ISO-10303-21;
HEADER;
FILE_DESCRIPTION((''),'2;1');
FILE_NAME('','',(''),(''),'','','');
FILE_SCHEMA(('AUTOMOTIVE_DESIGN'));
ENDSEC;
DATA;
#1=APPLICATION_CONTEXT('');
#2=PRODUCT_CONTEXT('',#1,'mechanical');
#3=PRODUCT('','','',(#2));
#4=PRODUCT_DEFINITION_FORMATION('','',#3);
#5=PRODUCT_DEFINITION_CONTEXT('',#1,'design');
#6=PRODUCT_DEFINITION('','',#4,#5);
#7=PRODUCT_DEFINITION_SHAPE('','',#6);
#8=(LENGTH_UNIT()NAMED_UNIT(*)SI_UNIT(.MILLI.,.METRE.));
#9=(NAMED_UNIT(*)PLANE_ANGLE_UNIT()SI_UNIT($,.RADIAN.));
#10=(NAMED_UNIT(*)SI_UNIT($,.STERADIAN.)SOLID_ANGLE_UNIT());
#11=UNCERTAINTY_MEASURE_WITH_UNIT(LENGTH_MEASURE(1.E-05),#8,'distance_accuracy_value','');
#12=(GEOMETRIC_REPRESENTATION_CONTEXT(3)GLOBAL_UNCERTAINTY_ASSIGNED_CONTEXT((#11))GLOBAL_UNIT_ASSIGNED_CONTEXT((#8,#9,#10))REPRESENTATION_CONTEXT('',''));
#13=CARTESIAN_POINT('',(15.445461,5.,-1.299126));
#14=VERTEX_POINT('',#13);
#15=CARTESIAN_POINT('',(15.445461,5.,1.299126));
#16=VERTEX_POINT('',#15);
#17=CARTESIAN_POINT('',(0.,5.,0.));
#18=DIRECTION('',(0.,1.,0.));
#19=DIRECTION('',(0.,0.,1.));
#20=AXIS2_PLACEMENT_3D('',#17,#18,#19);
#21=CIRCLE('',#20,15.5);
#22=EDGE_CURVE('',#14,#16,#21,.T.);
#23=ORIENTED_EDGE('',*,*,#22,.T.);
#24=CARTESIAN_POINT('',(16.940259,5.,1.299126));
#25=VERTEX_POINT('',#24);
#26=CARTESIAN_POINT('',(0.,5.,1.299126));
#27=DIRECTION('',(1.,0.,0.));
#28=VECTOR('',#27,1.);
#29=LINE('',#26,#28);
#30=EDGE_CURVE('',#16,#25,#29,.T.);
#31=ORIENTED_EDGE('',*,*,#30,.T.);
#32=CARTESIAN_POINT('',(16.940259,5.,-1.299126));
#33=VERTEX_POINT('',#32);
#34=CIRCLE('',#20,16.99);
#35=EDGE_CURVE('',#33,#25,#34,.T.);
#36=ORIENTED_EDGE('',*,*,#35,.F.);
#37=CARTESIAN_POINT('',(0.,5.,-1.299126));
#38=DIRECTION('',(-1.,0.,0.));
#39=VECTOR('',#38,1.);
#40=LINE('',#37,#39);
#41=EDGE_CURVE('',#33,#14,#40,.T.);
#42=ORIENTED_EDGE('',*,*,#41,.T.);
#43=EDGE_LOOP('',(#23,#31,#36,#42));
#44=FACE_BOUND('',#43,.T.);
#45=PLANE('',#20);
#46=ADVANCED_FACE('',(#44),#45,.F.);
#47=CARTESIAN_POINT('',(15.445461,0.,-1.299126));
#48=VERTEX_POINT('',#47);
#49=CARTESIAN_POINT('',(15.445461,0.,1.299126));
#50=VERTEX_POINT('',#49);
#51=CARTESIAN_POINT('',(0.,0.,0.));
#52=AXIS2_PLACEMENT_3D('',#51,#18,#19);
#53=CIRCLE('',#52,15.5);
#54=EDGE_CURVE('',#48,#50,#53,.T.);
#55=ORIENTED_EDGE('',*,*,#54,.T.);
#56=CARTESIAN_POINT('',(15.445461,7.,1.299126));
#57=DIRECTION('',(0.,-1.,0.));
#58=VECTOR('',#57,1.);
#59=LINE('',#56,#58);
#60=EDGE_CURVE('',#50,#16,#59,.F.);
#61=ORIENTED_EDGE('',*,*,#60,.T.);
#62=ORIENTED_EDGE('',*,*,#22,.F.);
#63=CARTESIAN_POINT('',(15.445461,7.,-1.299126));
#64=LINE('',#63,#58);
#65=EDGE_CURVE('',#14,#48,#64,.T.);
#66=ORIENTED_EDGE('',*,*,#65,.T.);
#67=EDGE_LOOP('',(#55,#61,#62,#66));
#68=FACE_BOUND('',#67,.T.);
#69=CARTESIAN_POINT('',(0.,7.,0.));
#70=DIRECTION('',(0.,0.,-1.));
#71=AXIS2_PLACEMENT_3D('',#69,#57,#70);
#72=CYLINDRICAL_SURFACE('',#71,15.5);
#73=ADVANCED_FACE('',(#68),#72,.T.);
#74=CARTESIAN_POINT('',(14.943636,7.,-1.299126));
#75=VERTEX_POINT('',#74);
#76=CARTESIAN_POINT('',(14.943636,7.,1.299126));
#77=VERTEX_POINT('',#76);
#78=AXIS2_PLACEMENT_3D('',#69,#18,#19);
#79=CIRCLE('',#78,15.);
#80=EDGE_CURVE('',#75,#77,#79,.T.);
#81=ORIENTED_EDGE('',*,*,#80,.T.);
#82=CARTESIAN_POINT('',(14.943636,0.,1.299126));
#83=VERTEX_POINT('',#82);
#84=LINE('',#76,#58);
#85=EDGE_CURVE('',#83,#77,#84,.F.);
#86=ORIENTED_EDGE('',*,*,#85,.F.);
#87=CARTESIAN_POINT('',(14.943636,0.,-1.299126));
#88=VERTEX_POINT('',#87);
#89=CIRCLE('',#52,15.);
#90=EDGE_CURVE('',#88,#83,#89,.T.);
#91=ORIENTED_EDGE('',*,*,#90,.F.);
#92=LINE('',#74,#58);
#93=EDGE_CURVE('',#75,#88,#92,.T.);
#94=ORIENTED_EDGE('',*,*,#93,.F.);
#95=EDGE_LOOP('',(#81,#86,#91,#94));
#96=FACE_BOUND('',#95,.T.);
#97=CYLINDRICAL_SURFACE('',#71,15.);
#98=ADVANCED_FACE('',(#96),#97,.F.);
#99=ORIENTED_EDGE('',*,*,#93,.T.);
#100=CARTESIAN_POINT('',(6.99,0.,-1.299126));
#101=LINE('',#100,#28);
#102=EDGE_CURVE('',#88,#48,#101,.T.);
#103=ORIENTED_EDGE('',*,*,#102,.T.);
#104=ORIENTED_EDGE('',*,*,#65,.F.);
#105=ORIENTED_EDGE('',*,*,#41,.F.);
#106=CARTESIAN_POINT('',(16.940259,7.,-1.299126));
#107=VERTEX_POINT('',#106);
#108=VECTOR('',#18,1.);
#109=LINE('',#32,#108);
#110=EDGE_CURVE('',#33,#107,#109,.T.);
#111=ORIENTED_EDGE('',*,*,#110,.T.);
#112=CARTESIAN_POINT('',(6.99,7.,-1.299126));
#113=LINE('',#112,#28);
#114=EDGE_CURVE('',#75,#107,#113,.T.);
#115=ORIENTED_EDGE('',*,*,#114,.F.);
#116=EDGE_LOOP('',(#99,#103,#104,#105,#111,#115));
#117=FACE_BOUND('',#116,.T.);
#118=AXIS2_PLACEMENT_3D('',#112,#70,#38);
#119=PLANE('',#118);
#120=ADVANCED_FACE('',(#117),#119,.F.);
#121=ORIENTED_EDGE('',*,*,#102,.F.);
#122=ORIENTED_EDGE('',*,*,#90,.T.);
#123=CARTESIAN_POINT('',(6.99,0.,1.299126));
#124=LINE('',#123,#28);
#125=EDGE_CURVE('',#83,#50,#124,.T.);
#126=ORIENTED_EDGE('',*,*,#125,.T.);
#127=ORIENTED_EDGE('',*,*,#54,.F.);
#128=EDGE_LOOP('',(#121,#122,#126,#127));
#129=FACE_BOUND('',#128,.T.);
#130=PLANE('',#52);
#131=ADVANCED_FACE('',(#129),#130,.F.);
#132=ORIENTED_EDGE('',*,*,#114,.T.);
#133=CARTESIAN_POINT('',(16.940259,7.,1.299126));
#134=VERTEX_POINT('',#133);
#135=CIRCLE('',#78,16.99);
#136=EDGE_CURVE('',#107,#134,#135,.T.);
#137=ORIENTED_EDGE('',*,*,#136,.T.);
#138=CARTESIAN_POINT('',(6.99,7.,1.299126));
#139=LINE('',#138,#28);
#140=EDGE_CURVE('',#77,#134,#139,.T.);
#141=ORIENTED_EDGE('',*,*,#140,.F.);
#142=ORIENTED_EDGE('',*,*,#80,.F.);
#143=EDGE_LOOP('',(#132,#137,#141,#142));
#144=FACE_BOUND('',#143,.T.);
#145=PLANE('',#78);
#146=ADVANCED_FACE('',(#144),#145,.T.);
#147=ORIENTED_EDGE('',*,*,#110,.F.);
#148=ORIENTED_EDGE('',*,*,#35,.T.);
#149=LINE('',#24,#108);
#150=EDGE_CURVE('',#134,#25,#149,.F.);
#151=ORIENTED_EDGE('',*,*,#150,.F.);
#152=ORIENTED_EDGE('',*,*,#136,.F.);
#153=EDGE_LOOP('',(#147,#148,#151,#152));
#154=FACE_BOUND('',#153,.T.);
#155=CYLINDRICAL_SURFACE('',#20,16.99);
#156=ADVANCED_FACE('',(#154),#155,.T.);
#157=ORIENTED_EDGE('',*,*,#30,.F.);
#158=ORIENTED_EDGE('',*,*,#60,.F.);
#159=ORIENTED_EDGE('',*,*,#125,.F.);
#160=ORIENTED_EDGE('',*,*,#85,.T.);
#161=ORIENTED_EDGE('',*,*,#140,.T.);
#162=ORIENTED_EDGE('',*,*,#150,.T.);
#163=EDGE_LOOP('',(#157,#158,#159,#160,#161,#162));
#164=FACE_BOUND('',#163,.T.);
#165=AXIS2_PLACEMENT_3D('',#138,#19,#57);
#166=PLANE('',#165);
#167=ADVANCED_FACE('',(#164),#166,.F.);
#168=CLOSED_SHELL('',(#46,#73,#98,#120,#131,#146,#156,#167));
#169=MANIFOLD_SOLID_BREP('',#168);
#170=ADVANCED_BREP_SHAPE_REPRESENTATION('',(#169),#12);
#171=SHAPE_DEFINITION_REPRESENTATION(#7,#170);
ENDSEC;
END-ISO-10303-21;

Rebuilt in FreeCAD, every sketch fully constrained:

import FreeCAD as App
import Part
import Sketcher
from FreeCAD import Vector

doc = App.newDocument("Part")
body = doc.addObject("PartDesign::Body", "Body")

# Sketch on XZ plane
sketch1 = body.newObject("Sketcher::SketchObject", "Sketch")
sketch1.AttachmentSupport = (doc.getObject("XZ_Plane"), [""])
sketch1.MapMode = "FlatFace"
sketch1.addGeometry(Part.Circle(Vector(0, 0, 0), Vector(0, 0, 1), 16), False)
sketch1.addGeometry(Part.Circle(Vector(0, 0, 0), Vector(0, 0, 1), 15), False)
sketch1.addConstraint(Sketcher.Constraint("Coincident", 0, 3, -1, 1))
sketch1.addConstraint(Sketcher.Constraint("Coincident", 1, 3, -1, 1))
sketch1.addConstraint(Sketcher.Constraint("Diameter", 0, 31.0))
sketch1.addConstraint(Sketcher.Constraint("Diameter", 1, 30.0))
pad1 = body.newObject("PartDesign::Pad", "Pad")
pad1.Profile = sketch1
pad1.Length = 7
pad1.Reversed = True

# Sketch on XZ plane
sketch2 = body.newObject("Sketcher::SketchObject", "Sketch001")
sketch2.AttachmentSupport = (doc.getObject("XZ_Plane"), [""])
sketch2.MapMode = "FlatFace"
sketch2.AttachmentOffset = App.Placement(Vector(0, 0, -5), App.Rotation())
sketch2.addGeometry(Part.Circle(Vector(0, 0, 0), Vector(0, 0, 1), 17), False)
sketch2.addGeometry(Part.Circle(Vector(0, 0, 0), Vector(0, 0, 1), 16), False)
sketch2.addConstraint(Sketcher.Constraint("Coincident", 0, 3, -1, 1))
sketch2.addConstraint(Sketcher.Constraint("Coincident", 1, 3, -1, 1))
sketch2.addConstraint(Sketcher.Constraint("Diameter", 1, 31.0))
sketch2.addConstraint(Sketcher.Constraint("Diameter", 0, 33.98))
pad2 = body.newObject("PartDesign::Pad", "Pad001")
pad2.Profile = sketch2
pad2.Length = 2
pad2.Reversed = True

# Sketch on YZ plane
sketch3 = body.newObject("Sketcher::SketchObject", "Sketch002")
sketch3.AttachmentSupport = (doc.getObject("YZ_Plane"), [""])
sketch3.MapMode = "FlatFace"
sketch3.AttachmentOffset = App.Placement(Vector(0, 0, 16.99), App.Rotation())
sketch3.addGeometry(Part.LineSegment(Vector(7, 1.3, 0), Vector(0, 1.3, 0)), False)
sketch3.addGeometry(Part.LineSegment(Vector(0, 1.3, 0), Vector(0, -1.3, 0)), False)
sketch3.addGeometry(Part.LineSegment(Vector(0, -1.3, 0), Vector(7, -1.3, 0)), False)
sketch3.addGeometry(Part.LineSegment(Vector(7, -1.3, 0), Vector(7, 1.3, 0)), False)
sketch3.addConstraint(Sketcher.Constraint("Coincident", 0, 2, 1, 1))
sketch3.addConstraint(Sketcher.Constraint("Coincident", 1, 2, 2, 1))
sketch3.addConstraint(Sketcher.Constraint("Coincident", 2, 2, 3, 1))
sketch3.addConstraint(Sketcher.Constraint("Coincident", 3, 2, 0, 1))
sketch3.addConstraint(Sketcher.Constraint("Horizontal", 0))
sketch3.addConstraint(Sketcher.Constraint("Vertical", 1))
sketch3.addConstraint(Sketcher.Constraint("Horizontal", 2))
sketch3.addConstraint(Sketcher.Constraint("Vertical", 3))
sketch3.addConstraint(Sketcher.Constraint("Symmetric", 0, 2, 1, 2, -1, 1))
sketch3.addConstraint(Sketcher.Constraint("DistanceX", 0, 2, 0, 1, 7.0))
sketch3.addConstraint(Sketcher.Constraint("DistanceY", 1, 2, 1, 1, 2.598252))
pocket1 = body.newObject("PartDesign::Pocket", "Pocket")
pocket1.Profile = sketch3
pocket1.Length = 10

doc.recompute()
